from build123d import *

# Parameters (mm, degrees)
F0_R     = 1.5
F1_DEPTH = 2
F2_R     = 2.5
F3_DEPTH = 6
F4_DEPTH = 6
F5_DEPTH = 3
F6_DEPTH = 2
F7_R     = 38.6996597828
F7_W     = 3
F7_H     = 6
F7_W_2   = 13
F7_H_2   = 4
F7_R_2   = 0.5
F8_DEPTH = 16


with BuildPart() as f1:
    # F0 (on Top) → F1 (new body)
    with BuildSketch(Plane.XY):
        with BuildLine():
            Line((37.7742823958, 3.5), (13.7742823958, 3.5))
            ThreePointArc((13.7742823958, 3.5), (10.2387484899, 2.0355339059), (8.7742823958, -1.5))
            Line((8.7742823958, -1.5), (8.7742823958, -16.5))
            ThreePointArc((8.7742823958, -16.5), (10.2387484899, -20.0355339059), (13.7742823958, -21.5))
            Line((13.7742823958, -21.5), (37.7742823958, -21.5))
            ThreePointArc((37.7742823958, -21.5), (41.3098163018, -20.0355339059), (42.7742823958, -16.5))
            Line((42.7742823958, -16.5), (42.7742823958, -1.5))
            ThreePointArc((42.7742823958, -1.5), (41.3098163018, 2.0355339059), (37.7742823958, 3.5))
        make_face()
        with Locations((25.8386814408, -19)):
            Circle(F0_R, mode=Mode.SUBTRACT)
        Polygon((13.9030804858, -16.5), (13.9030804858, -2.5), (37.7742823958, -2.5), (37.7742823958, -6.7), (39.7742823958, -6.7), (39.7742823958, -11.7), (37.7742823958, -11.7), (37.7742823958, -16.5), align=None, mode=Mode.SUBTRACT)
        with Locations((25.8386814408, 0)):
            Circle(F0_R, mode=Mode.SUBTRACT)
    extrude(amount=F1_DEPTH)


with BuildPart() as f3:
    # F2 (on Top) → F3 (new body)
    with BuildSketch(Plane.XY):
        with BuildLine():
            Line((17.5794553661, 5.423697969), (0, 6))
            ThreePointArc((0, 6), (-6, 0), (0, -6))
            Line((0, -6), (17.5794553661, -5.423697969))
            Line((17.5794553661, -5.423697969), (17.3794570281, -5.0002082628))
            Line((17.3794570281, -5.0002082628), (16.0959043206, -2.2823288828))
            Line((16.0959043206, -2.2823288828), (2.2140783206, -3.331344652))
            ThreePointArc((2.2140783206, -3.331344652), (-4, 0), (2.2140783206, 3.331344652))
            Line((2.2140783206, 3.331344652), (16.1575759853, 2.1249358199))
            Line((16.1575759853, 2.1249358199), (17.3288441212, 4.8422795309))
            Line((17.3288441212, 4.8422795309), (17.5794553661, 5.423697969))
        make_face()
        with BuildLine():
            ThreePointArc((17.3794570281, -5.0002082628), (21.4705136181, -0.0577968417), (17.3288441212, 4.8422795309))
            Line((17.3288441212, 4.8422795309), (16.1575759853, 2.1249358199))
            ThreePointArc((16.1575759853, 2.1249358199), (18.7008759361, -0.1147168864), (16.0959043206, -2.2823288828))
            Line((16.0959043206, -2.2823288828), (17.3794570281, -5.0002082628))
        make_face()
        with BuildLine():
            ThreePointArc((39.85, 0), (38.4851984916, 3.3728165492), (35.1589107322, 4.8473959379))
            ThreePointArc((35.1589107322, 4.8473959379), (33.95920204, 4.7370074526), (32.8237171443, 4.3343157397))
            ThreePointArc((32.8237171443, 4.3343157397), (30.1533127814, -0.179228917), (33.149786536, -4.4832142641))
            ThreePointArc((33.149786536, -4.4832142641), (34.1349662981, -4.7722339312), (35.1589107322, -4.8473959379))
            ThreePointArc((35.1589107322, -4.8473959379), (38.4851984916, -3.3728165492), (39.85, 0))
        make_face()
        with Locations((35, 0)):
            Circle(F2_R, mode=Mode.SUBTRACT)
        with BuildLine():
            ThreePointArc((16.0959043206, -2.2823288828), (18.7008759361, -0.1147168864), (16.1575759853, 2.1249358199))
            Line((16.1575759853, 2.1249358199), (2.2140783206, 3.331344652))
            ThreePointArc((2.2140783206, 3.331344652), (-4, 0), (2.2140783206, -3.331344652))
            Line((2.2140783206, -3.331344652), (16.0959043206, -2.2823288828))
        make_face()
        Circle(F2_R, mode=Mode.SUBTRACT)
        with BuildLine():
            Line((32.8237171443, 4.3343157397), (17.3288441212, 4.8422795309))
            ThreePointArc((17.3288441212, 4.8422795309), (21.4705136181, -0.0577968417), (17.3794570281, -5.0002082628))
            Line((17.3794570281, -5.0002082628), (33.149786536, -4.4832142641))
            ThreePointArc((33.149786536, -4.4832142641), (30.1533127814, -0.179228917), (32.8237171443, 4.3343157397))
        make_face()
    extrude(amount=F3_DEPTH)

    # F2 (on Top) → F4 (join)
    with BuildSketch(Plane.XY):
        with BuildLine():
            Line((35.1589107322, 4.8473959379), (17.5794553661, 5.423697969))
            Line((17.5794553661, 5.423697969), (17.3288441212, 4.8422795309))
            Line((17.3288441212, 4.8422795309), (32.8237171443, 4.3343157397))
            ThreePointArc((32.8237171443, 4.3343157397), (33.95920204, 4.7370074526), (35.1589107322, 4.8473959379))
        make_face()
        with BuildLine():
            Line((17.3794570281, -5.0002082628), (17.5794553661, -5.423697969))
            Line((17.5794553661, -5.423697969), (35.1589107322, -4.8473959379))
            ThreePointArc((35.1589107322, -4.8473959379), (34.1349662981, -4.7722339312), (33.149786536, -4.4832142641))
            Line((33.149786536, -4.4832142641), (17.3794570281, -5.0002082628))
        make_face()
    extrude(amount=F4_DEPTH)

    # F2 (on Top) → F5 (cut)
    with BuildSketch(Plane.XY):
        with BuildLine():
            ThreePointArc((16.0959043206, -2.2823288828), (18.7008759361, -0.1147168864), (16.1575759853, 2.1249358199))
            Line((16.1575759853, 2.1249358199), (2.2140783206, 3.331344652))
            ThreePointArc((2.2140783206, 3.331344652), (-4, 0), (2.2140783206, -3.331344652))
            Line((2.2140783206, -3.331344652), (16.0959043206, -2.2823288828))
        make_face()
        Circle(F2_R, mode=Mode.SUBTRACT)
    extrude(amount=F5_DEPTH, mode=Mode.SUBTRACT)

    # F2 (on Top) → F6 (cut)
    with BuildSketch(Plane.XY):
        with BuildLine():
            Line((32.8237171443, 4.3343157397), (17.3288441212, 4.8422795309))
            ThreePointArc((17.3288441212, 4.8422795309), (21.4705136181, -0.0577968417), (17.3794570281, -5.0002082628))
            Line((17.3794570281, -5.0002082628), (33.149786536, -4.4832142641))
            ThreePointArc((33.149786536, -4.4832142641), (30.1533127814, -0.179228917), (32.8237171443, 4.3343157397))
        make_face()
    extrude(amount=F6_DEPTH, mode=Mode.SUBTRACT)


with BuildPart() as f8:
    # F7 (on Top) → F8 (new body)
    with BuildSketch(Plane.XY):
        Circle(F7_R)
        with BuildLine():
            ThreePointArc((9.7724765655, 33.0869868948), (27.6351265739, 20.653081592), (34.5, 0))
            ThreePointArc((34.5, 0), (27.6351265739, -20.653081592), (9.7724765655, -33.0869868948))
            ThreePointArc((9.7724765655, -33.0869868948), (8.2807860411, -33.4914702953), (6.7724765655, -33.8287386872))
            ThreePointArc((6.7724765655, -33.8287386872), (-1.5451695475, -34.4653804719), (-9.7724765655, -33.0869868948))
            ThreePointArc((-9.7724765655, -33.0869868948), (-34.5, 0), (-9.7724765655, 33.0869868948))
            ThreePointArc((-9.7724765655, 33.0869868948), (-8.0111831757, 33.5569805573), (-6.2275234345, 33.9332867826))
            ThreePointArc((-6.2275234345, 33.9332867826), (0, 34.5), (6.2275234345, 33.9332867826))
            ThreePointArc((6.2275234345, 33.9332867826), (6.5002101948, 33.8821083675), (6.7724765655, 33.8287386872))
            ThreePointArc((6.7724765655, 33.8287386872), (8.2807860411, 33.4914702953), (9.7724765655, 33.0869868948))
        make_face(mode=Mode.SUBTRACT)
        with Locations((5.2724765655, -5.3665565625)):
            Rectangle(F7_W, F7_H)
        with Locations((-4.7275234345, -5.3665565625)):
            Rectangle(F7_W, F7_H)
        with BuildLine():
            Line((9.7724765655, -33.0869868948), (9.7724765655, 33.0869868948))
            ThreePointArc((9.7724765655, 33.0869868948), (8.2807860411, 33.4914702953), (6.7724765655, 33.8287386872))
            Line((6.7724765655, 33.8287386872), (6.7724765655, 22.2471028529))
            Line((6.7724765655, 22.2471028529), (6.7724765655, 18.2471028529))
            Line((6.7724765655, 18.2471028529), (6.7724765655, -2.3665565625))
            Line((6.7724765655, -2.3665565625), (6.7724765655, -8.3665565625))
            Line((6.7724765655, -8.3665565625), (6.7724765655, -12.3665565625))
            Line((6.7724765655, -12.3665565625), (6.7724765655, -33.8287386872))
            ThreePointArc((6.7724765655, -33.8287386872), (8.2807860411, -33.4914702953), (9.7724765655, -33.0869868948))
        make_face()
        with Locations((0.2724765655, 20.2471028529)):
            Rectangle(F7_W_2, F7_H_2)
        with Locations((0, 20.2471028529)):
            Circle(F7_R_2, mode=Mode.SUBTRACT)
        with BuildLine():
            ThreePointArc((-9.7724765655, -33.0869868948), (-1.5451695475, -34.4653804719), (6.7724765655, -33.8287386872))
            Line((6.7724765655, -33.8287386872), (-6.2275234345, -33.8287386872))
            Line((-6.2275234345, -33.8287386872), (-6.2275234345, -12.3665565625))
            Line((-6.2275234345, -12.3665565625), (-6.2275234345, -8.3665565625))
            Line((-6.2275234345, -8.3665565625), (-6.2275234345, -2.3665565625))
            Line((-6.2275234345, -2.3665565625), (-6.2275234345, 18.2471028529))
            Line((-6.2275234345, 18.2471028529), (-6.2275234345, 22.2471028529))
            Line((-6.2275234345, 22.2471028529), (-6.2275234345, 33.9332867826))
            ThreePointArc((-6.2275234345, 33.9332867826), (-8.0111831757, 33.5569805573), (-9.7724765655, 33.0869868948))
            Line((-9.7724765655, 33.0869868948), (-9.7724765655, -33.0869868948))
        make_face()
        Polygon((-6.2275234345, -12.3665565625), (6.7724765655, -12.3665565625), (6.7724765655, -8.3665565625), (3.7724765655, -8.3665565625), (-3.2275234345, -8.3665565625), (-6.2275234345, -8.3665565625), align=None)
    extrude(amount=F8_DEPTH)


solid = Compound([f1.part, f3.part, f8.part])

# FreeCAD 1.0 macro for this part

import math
import FreeCAD as App
import Part
import Sketcher

V = App.Vector
Q = App.Units.Quantity


def add_polygon(sketch, points):
    """Adds a closed chain of lines whose ends are joined by coincident constraints."""
    first, n = sketch.GeometryCount, len(points)
    for a, b in zip(points, points[1:] + points[:1]):
        sketch.addGeometry(Part.LineSegment(App.Vector(*a, 0), App.Vector(*b, 0)), False)
    for i in range(n):
        sketch.addConstraint(Sketcher.Constraint("Coincident", first + i, 2, first + (i + 1) % n, 1))

doc = App.newDocument("Part")
body = doc.addObject("PartDesign::Body", "Body")

# Sketch on XY plane
sketch1 = body.newObject("Sketcher::SketchObject", "Sketch")
sketch1.AttachmentSupport = (doc.getObject("XY_Plane"), [""])
sketch1.MapMode = "FlatFace"
sketch1.addGeometry(Part.LineSegment(V(37.8, 3.5, 0), V(13.8, 3.5, 0)), False)  # 0
sketch1.addGeometry(Part.ArcOfCircle(Part.Circle(V(13.8, -1.5, 0), V(0, 0, 1), 5), math.radians(90), math.radians(180)), False)  # 1
sketch1.addGeometry(Part.LineSegment(V(8.8, -1.5, 0), V(8.8, -16.5, 0)), False)  # 2
sketch1.addGeometry(Part.ArcOfCircle(Part.Circle(V(13.8, -16.5, 0), V(0, 0, 1), 5), math.radians(180), math.radians(270)), False)  # 3
sketch1.addGeometry(Part.LineSegment(V(13.8, -21.5, 0), V(37.8, -21.5, 0)), False)  # 4
sketch1.addGeometry(Part.ArcOfCircle(Part.Circle(V(37.8, -16.5, 0), V(0, 0, 1), 5), math.radians(-90), math.radians(0)), False)  # 5
sketch1.addGeometry(Part.LineSegment(V(42.8, -16.5, 0), V(42.8, -1.5, 0)), False)  # 6
sketch1.addGeometry(Part.ArcOfCircle(Part.Circle(V(37.8, -1.5, 0), V(0, 0, 1), 5), math.radians(0), math.radians(90)), False)  # 7
sketch1.addGeometry(Part.Circle(V(25.8, -19, 0), V(0, 0, 1), 1.5), False)  # 8
sketch1.addGeometry(Part.Circle(V(25.8, 0, 0), V(0, 0, 1), 1.5), False)  # 9
add_polygon(sketch1, [(37.8, -16.5), (13.9, -16.5), (13.9, -2.5), (37.8, -2.5), (37.8, -6.7), (39.8, -6.7), (39.8, -11.7), (37.8, -11.7)])  # lines 10-17
sketch1.addConstraint(Sketcher.Constraint("Tangent", 0, 2, 1, 1))
sketch1.addConstraint(Sketcher.Constraint("Tangent", 1, 2, 2, 1))
sketch1.addConstraint(Sketcher.Constraint("Tangent", 2, 2, 3, 1))
sketch1.addConstraint(Sketcher.Constraint("Tangent", 3, 2, 4, 1))
sketch1.addConstraint(Sketcher.Constraint("Tangent", 4, 2, 5, 1))
sketch1.addConstraint(Sketcher.Constraint("Tangent", 5, 2, 6, 1))
sketch1.addConstraint(Sketcher.Constraint("Tangent", 6, 2, 7, 1))
sketch1.addConstraint(Sketcher.Constraint("Tangent", 7, 2, 0, 1))
sketch1.addConstraint(Sketcher.Constraint("Horizontal", 0))
sketch1.addConstraint(Sketcher.Constraint("Vertical", 2))
sketch1.addConstraint(Sketcher.Constraint("Horizontal", 4))
sketch1.addConstraint(Sketcher.Constraint("Vertical", 6))
sketch1.addConstraint(Sketcher.Constraint("Horizontal", 10))
sketch1.addConstraint(Sketcher.Constraint("Vertical", 11))
sketch1.addConstraint(Sketcher.Constraint("Horizontal", 12))
sketch1.addConstraint(Sketcher.Constraint("Vertical", 13))
sketch1.addConstraint(Sketcher.Constraint("Horizontal", 14))
sketch1.addConstraint(Sketcher.Constraint("Vertical", 15))
sketch1.addConstraint(Sketcher.Constraint("Horizontal", 16))
sketch1.addConstraint(Sketcher.Constraint("Vertical", 17))
sketch1.addConstraint(Sketcher.Constraint("Coincident", 17, 2, 5, 3))
sketch1.addConstraint(Sketcher.Constraint("Equal", 1, 3))
sketch1.addConstraint(Sketcher.Constraint("Equal", 3, 5))
sketch1.addConstraint(Sketcher.Constraint("Equal", 5, 7))
sketch1.addConstraint(Sketcher.Constraint("Equal", 8, 9))
sketch1.addConstraint(Sketcher.Constraint("PointOnObject", 9, 3, -1))
sketch1.addConstraint(Sketcher.Constraint("Vertical", 8, 3, 9, 3))
sketch1.addConstraint(Sketcher.Constraint("Vertical", 7, 2, 12, 2))
sketch1.addConstraint(Sketcher.Constraint("Diameter", 8, Q("3 mm")))
sketch1.addConstraint(Sketcher.Constraint("Radius", 1, Q("5 mm")))
sketch1.addConstraint(Sketcher.Constraint("DistanceX", 0, 2, 0, 1, Q("24 mm")))
sketch1.addConstraint(Sketcher.Constraint("DistanceX", 14, 1, 14, 2, Q("2 mm")))
sketch1.addConstraint(Sketcher.Constraint("DistanceY", 2, 2, 2, 1, Q("15 mm")))
sketch1.addConstraint(Sketcher.Constraint("DistanceY", 11, 1, 11, 2, Q("14 mm")))
sketch1.addConstraint(Sketcher.Constraint("DistanceY", 15, 2, 15, 1, Q("5 mm")))
sketch1.addConstraint(Sketcher.Constraint("DistanceY", 13, 2, 13, 1, Q("4.2 mm")))
sketch1.addConstraint(Sketcher.Constraint("DistanceY", 8, 3, -1, 1, Q("19 mm")))
sketch1.addConstraint(Sketcher.Constraint("DistanceY", 1, 3, -1, 1, Q("1.5 mm")))
sketch1.addConstraint(Sketcher.Constraint("DistanceX", 10, 2, 10, 1, Q("23.871202 mm")))
sketch1.addConstraint(Sketcher.Constraint("DistanceX", 8, 3, 5, 3, Q("11.935601 mm")))
sketch1.addConstraint(Sketcher.Constraint("DistanceX", -1, 1, 8, 3, Q("25.838681 mm")))
pad1 = body.newObject("PartDesign::Pad", "Pad")
pad1.Profile = sketch1
pad1.Length = 2
body2 = doc.addObject("PartDesign::Body", "Body001")

# Sketch on XY plane
sketch2 = body2.newObject("Sketcher::SketchObject", "Sketch001")
sketch2.AttachmentSupport = (doc.getObject("XY_Plane001"), [""])
sketch2.MapMode = "FlatFace"
sketch2.addGeometry(Part.LineSegment(V(17.58, 5.42, 0), V(0, 6, 0)), False)
sketch2.addGeometry(Part.ArcOfCircle(Part.Circle(V(0, 0, 0), V(0, 0, 1), 6), math.radians(90), math.radians(270)), False)
sketch2.addGeometry(Part.LineSegment(V(0, -6, 0), V(17.58, -5.42, 0)), False)
sketch2.addGeometry(Part.LineSegment(V(17.58, -5.42, 0), V(17.38, -5, 0)), False)
sketch2.addGeometry(Part.LineSegment(V(17.38, -5, 0), V(33.15, -4.48, 0)), False)
sketch2.addGeometry(Part.ArcOfCircle(Part.Circle(V(35, 0, 0), V(0, 0, 1), 4.85), math.radians(-112), math.radians(-88)), False)
sketch2.addGeometry(Part.ArcOfCircle(Part.Circle(V(35, 0, 0), V(0, 0, 1), 4.85), math.radians(-88), math.radians(0)), False)
sketch2.addGeometry(Part.ArcOfCircle(Part.Circle(V(35, 0, 0), V(0, 0, 1), 4.85), math.radians(0), math.radians(88)), False)
sketch2.addGeometry(Part.ArcOfCircle(Part.Circle(V(35, 0, 0), V(0, 0, 1), 4.85), math.radians(88), math.radians(117)), False)
sketch2.addGeometry(Part.LineSegment(V(32.82, 4.33, 0), V(17.33, 4.84, 0)), False)
sketch2.addGeometry(Part.LineSegment(V(17.33, 4.84, 0), V(17.58, 5.42, 0)), False)
sketch2.addGeometry(Part.Circle(V(0, 0, 0), V(0, 0, 1), 2.5), False)
sketch2.addGeometry(Part.Circle(V(35, 0, 0), V(0, 0, 1), 2.5), False)
sketch2.addConstraint(Sketcher.Constraint("Coincident", 0, 2, 1, 1))
sketch2.addConstraint(Sketcher.Constraint("Coincident", 1, 2, 2, 1))
sketch2.addConstraint(Sketcher.Constraint("Coincident", 2, 2, 3, 1))
sketch2.addConstraint(Sketcher.Constraint("Coincident", 3, 2, 4, 1))
sketch2.addConstraint(Sketcher.Constraint("Coincident", 4, 2, 5, 1))
sketch2.addConstraint(Sketcher.Constraint("Tangent", 5, 2, 6, 1))
sketch2.addConstraint(Sketcher.Constraint("Tangent", 6, 2, 7, 1))
sketch2.addConstraint(Sketcher.Constraint("Tangent", 7, 2, 8, 1))
sketch2.addConstraint(Sketcher.Constraint("Coincident", 8, 2, 9, 1))
sketch2.addConstraint(Sketcher.Constraint("Coincident", 9, 2, 10, 1))
sketch2.addConstraint(Sketcher.Constraint("Coincident", 10, 2, 0, 1))
sketch2.addConstraint(Sketcher.Constraint("Coincident", 1, 3, -1, 1))
sketch2.addConstraint(Sketcher.Constraint("Coincident", 11, 3, -1, 1))
sketch2.addConstraint(Sketcher.Constraint("Coincident", 7, 3, 5, 3))
sketch2.addConstraint(Sketcher.Constraint("Coincident", 12, 3, 5, 3))
sketch2.addConstraint(Sketcher.Constraint("Equal", 7, 8))
sketch2.addConstraint(Sketcher.Constraint("Equal", 11, 12))
sketch2.addConstraint(Sketcher.Constraint("Symmetric", 5, 2, 7, 2, -1))
sketch2.addConstraint(Sketcher.Constraint("Symmetric", 2, 2, 10, 2, -1))
sketch2.addConstraint(Sketcher.Constraint("PointOnObject", 0, 2, -2))
sketch2.addConstraint(Sketcher.Constraint("PointOnObject", 1, 2, -2))
sketch2.addConstraint(Sketcher.Constraint("PointOnObject", 6, 2, -1))
sketch2.addConstraint(Sketcher.Constraint("Parallel", 2, 4))
sketch2.addConstraint(Sketcher.Constraint("Parallel", 0, 9))
sketch2.addConstraint(Sketcher.Constraint("Diameter", 11, Q("5 mm")))
sketch2.addConstraint(Sketcher.Constraint("Radius", 1, Q("6 mm")))
sketch2.addConstraint(Sketcher.Constraint("Radius", 5, Q("4.85 mm")))
sketch2.addConstraint(Sketcher.Constraint("DistanceX", -1, 1, 5, 3, Q("35 mm")))
sketch2.addConstraint(Sketcher.Constraint("DistanceX", 3, 2, 2, 2, Q("0.199998 mm")))
sketch2.addConstraint(Sketcher.Constraint("Distance", 0, Q("17.588899 mm")))
sketch2.addConstraint(Sketcher.Constraint("Distance", 4, Q("15.778801 mm")))
sketch2.addConstraint(Sketcher.Constraint("Distance", 3, Q("0.468341 mm")))
sketch2.addConstraint(Sketcher.Constraint("Distance", 10, Q("0.63313 mm")))
sketch2.addConstraint(Sketcher.Constraint("DistanceX", -1, 1, 5, 2, Q("35.158911 mm")))
sketch2.addConstraint(Sketcher.Constraint("DistanceY", -1, 1, 9, 2, Q("4.84228 mm")))
pad2 = body2.newObject("PartDesign::Pad", "Pad001")
pad2.Profile = sketch2
pad2.Length = 6

# Sketch on XY plane
sketch3 = body2.newObject("Sketcher::SketchObject", "Sketch002")
sketch3.AttachmentSupport = (doc.getObject("XY_Plane001"), [""])
sketch3.MapMode = "FlatFace"
sketch3.addGeometry(Part.LineSegment(V(35.158911, 4.847396, 0), V(17.579455, 5.423698, 0)), False)
sketch3.addGeometry(Part.LineSegment(V(17.579455, 5.423698, 0), V(17.328844, 4.84228, 0)), False)
sketch3.addGeometry(Part.LineSegment(V(17.328844, 4.84228, 0), V(32.823717, 4.334316, 0)), False)
sketch3.addGeometry(Part.ArcOfCircle(Part.Circle(V(35, 0, 0), V(0, 0, 1), 4.85), math.radians(88.122362), math.radians(116.661469)), False)
sketch3.addGeometry(Part.LineSegment(V(17.379457, -5.000208, 0), V(17.579455, -5.423698, 0)), False)
sketch3.addGeometry(Part.LineSegment(V(17.579455, -5.423698, 0), V(35.158911, -4.847396, 0)), False)
sketch3.addGeometry(Part.ArcOfCircle(Part.Circle(V(35, 0, 0), V(0, 0, 1), 4.85), math.radians(-112.425841), math.radians(-88.122362)), False)
sketch3.addGeometry(Part.LineSegment(V(33.149787, -4.483214, 0), V(17.379457, -5.000208, 0)), False)
sketch3.addConstraint(Sketcher.Constraint("Coincident", 0, 2, 1, 1))
sketch3.addConstraint(Sketcher.Constraint("Coincident", 1, 2, 2, 1))
sketch3.addConstraint(Sketcher.Constraint("Coincident", 2, 2, 3, 2))
sketch3.addConstraint(Sketcher.Constraint("Coincident", 3, 1, 0, 1))
sketch3.addConstraint(Sketcher.Constraint("Coincident", 4, 2, 5, 1))
sketch3.addConstraint(Sketcher.Constraint("Coincident", 5, 2, 6, 2))
sketch3.addConstraint(Sketcher.Constraint("Coincident", 6, 1, 7, 1))
sketch3.addConstraint(Sketcher.Constraint("Coincident", 7, 2, 4, 1))
sketch3.addConstraint(Sketcher.Constraint("Coincident", 6, 3, 3, 3))
sketch3.addConstraint(Sketcher.Constraint("PointOnObject", 3, 3, -1))
sketch3.addConstraint(Sketcher.Constraint("Radius", 3, Q("4.85 mm")))
sketch3.addConstraint(Sketcher.Constraint("Radius", 6, Q("4.85 mm")))
sketch3.addConstraint(Sketcher.Constraint("DistanceX", -1, 1, 3, 3, Q("35 mm")))
sketch3.addConstraint(Sketcher.Constraint("DistanceX", 7, 2, 4, 2, Q("0.199998 mm")))
sketch3.addConstraint(Sketcher.Constraint("DistanceX", 7, 2, 0, 2, Q("0.199998 mm")))
sketch3.addConstraint(Sketcher.Constraint("Distance", 0, Q("17.588899 mm")))
sketch3.addConstraint(Sketcher.Constraint("Distance", 5, Q("17.588899 mm")))
sketch3.addConstraint(Sketcher.Constraint("Distance", 7, Q("15.778801 mm")))
sketch3.addConstraint(Sketcher.Constraint("Distance", 1, Q("0.63313 mm")))
sketch3.addConstraint(Sketcher.Constraint("Distance", 4, Q("0.468341 mm")))
sketch3.addConstraint(Sketcher.Constraint("DistanceY", -1, 1, 1, 2, Q("4.84228 mm")))
sketch3.addConstraint(Sketcher.Constraint("DistanceX", -1, 1, 3, 1, Q("35.158911 mm")))
sketch3.addConstraint(Sketcher.Constraint("DistanceX", -1, 1, 5, 2, Q("35.158911 mm")))
sketch3.addConstraint(Sketcher.Constraint("DistanceY", 7, 2, -1, 1, Q("5.000208 mm")))
sketch3.addConstraint(Sketcher.Constraint("DistanceX", 0, 2, 2, 2, Q("15.244262 mm")))
pad3 = body2.newObject("PartDesign::Pad", "Pad002")
pad3.Profile = sketch3
pad3.Length = 6

# Sketch on XY plane
sketch4 = body2.newObject("Sketcher::SketchObject", "Sketch003")
sketch4.AttachmentSupport = (doc.getObject("XY_Plane001"), [""])
sketch4.MapMode = "FlatFace"
sketch4.addGeometry(Part.ArcOfCircle(Part.Circle(V(16.5, -0.1, 0), V(0, 0, 1), 2.2), math.radians(-100), math.radians(98)), False)
sketch4.addGeometry(Part.LineSegment(V(16.2, 2.1, 0), V(2.2, 3.3, 0)), False)
sketch4.addGeometry(Part.ArcOfCircle(Part.Circle(V(0, 0, 0), V(0, 0, 1), 4), math.radians(56), math.radians(304)), False)
sketch4.addGeometry(Part.LineSegment(V(2.2, -3.3, 0), V(16.1, -2.3, 0)), False)
sketch4.addGeometry(Part.Circle(V(0, 0, 0), V(0, 0, 1), 2.5), False)
sketch4.addConstraint(Sketcher.Constraint("Coincident", 0, 2, 1, 1))
sketch4.addConstraint(Sketcher.Constraint("Coincident", 1, 2, 2, 1))
sketch4.addConstraint(Sketcher.Constraint("Coincident", 2, 2, 3, 1))
sketch4.addConstraint(Sketcher.Constraint("Coincident", 3, 2, 0, 1))
sketch4.addConstraint(Sketcher.Constraint("Coincident", 2, 3, -1, 1))
sketch4.addConstraint(Sketcher.Constraint("Coincident", 4, 3, -1, 1))
sketch4.addConstraint(Sketcher.Constraint("Vertical", 1, 2, 2, 2))
sketch4.addConstraint(Sketcher.Constraint("Diameter", 4, Q("5 mm")))
sketch4.addConstraint(Sketcher.Constraint("Radius", 2, Q("4 mm")))
sketch4.addConstraint(Sketcher.Constraint("Radius", 0, Q("2.230515 mm")))
sketch4.addConstraint(Sketcher.Constraint("DistanceX", 1, 2, 0, 3, Q("14.256501 mm")))
sketch4.addConstraint(Sketcher.Constraint("Distance", 1, Q("13.99559 mm")))
sketch4.addConstraint(Sketcher.Constraint("DistanceX", -1, 1, 0, 3, Q("16.47058 mm")))
sketch4.addConstraint(Sketcher.Constraint("DistanceY", 3, 2, -1, 1, Q("2.282329 mm")))
sketch4.addConstraint(Sketcher.Constraint("DistanceY", 0, 2, 1, 2, Q("1.206409 mm")))
pocket1 = body2.newObject("PartDesign::Pocket", "Pocket")
pocket1.Profile = sketch4
pocket1.Length = 3
pocket1.Reversed = True

# Sketch on XY plane
sketch5 = body2.newObject("Sketcher::SketchObject", "Sketch004")
sketch5.AttachmentSupport = (doc.getObject("XY_Plane001"), [""])
sketch5.MapMode = "FlatFace"
sketch5.addGeometry(Part.LineSegment(V(32.8, 4.3, 0), V(17.3, 4.8, 0)), False)
sketch5.addGeometry(Part.ArcOfCircle(Part.Circle(V(16.5, -0.1, 0), V(0, 0, 1), 5), math.radians(-80), math.radians(80)), False)
sketch5.addGeometry(Part.LineSegment(V(17.4, -5, 0), V(33.1, -4.5, 0)), False)
sketch5.addGeometry(Part.ArcOfCircle(Part.Circle(V(35, 0, 0), V(0, 0, 1), 4.8), math.radians(117), math.radians(248)), False)
sketch5.addConstraint(Sketcher.Constraint("Coincident", 0, 2, 1, 2))
sketch5.addConstraint(Sketcher.Constraint("Coincident", 1, 1, 2, 1))
sketch5.addConstraint(Sketcher.Constraint("Coincident", 2, 2, 3, 2))
sketch5.addConstraint(Sketcher.Constraint("Coincident", 3, 1, 0, 1))
sketch5.addConstraint(Sketcher.Constraint("PointOnObject", 3, 3, -1))
sketch5.addConstraint(Sketcher.Constraint("Radius", 1, Q("5 mm")))
sketch5.addConstraint(Sketcher.Constraint("Radius", 3, Q("4.85 mm")))
sketch5.addConstraint(Sketcher.Constraint("DistanceX", -1, 1, 3, 3, Q("35 mm")))
sketch5.addConstraint(Sketcher.Constraint("Distance", 2, Q("15.778801 mm")))
sketch5.addConstraint(Sketcher.Constraint("DistanceY", 1, 1, 1, 3, Q("4.9167 mm")))
sketch5.addConstraint(Sketcher.Constraint("DistanceX", -1, 1, 1, 3, Q("16.47058 mm")))
sketch5.addConstraint(Sketcher.Constraint("DistanceY", -1, 1, 0, 2, Q("4.84228 mm")))
sketch5.addConstraint(Sketcher.Constraint("DistanceY", 1, 1, -1, 1, Q("5.000208 mm")))
sketch5.addConstraint(Sketcher.Constraint("DistanceX", 3, 1, 2, 2, Q("0.326069 mm")))
pocket2 = body2.newObject("PartDesign::Pocket", "Pocket001")
pocket2.Profile = sketch5
pocket2.Length = 2
pocket2.Reversed = True
body3 = doc.addObject("PartDesign::Body", "Body002")

# Sketch on XY plane
sketch6 = body3.newObject("Sketcher::SketchObject", "Sketch005")
sketch6.AttachmentSupport = (doc.getObject("XY_Plane002"), [""])
sketch6.MapMode = "FlatFace"
sketch6.addGeometry(Part.Circle(V(0, 0, 0), V(0, 0, 1), 38.7), False)  # 0
sketch6.addGeometry(Part.ArcOfCircle(Part.Circle(V(0, 0, 0), V(0, 0, 1), 34.5), math.radians(78.68), math.radians(79.6)), False)  # 1
sketch6.addGeometry(Part.LineSegment(V(6.8, 33.8, 0), V(6.8, 22.2, 0)), False)  # 2
sketch6.addGeometry(Part.LineSegment(V(6.8, 22.2, 0), V(-6.2, 22.2, 0)), False)  # 3
sketch6.addGeometry(Part.LineSegment(V(-6.2, 22.2, 0), V(-6.2, 33.9, 0)), False)  # 4
sketch6.addGeometry(Part.ArcOfCircle(Part.Circle(V(0, 0, 0), V(0, 0, 1), 34.5), math.radians(80), math.radians(100)), False)  # 5
sketch6.addGeometry(Part.ArcOfCircle(Part.Circle(V(0, 0, 0), V(0, 0, 1), 34.5), math.radians(106), math.radians(254)), False)  # 6
sketch6.addGeometry(Part.LineSegment(V(-9.8, 33.1, 0), V(-9.8, -33.1, 0)), False)  # 7
add_polygon(sketch6, [(-6.2, 18.2), (6.8, 18.2), (6.8, -2.4), (3.8, -2.4), (3.8, -8.4), (-3.2, -8.4), (-3.2, -2.4), (-6.2, -2.4)])  # lines 8-15
add_polygon(sketch6, [(6.8, -12.4), (6.8, -33.8), (-6.2, -33.8), (-6.2, -12.4)])  # lines 16-19
sketch6.addGeometry(Part.ArcOfCircle(Part.Circle(V(0, 0, 0), V(0, 0, 1), 34.5), math.radians(-74), math.radians(0)), False)  # 20
sketch6.addGeometry(Part.LineSegment(V(9.8, -33.1, 0), V(9.8, 33.1, 0)), False)  # 21
sketch6.addGeometry(Part.ArcOfCircle(Part.Circle(V(0, 0, 0), V(0, 0, 1), 34.5), math.radians(0), math.radians(74)), False)  # 22
sketch6.addGeometry(Part.Circle(V(0, 20.2, 0), V(0, 0, 1), 0.5), False)  # 23
sketch6.addConstraint(Sketcher.Constraint("Coincident", 1, 1, 2, 1))
sketch6.addConstraint(Sketcher.Constraint("Coincident", 2, 2, 3, 1))
sketch6.addConstraint(Sketcher.Constraint("Coincident", 3, 2, 4, 1))
sketch6.addConstraint(Sketcher.Constraint("Coincident", 4, 2, 5, 2))
sketch6.addConstraint(Sketcher.Constraint("Tangent", 5, 1, 1, 2))
sketch6.addConstraint(Sketcher.Constraint("Coincident", 6, 1, 7, 1))
sketch6.addConstraint(Sketcher.Constraint("Coincident", 7, 2, 6, 2))
sketch6.addConstraint(Sketcher.Constraint("Coincident", 20, 1, 21, 1))
sketch6.addConstraint(Sketcher.Constraint("Coincident", 21, 2, 22, 2))
sketch6.addConstraint(Sketcher.Constraint("Tangent", 22, 1, 20, 2))
sketch6.addConstraint(Sketcher.Constraint("Vertical", 2))
sketch6.addConstraint(Sketcher.Constraint("Horizontal", 3))
sketch6.addConstraint(Sketcher.Constraint("Vertical", 4))
sketch6.addConstraint(Sketcher.Constraint("Vertical", 7))
sketch6.addConstraint(Sketcher.Constraint("Horizontal", 8))
sketch6.addConstraint(Sketcher.Constraint("Vertical", 9))
sketch6.addConstraint(Sketcher.Constraint("Horizontal", 10))
sketch6.addConstraint(Sketcher.Constraint("Vertical", 11))
sketch6.addConstraint(Sketcher.Constraint("Horizontal", 12))
sketch6.addConstraint(Sketcher.Constraint("Vertical", 13))
sketch6.addConstraint(Sketcher.Constraint("Horizontal", 14))
sketch6.addConstraint(Sketcher.Constraint("Vertical", 15))
sketch6.addConstraint(Sketcher.Constraint("Vertical", 16))
sketch6.addConstraint(Sketcher.Constraint("Horizontal", 17))
sketch6.addConstraint(Sketcher.Constraint("Vertical", 18))
sketch6.addConstraint(Sketcher.Constraint("Horizontal", 19))
sketch6.addConstraint(Sketcher.Constraint("Vertical", 21))
sketch6.addConstraint(Sketcher.Constraint("Coincident", 0, 3, -1, 1))
sketch6.addConstraint(Sketcher.Constraint("Coincident", 1, 3, -1, 1))
sketch6.addConstraint(Sketcher.Constraint("Coincident", 6, 3, -1, 1))
sketch6.addConstraint(Sketcher.Constraint("Coincident", 20, 3, -1, 1))
sketch6.addConstraint(Sketcher.Constraint("Equal", 5, 6))
sketch6.addConstraint(Sketcher.Constraint("Equal", 6, 20))
sketch6.addConstraint(Sketcher.Constraint("Equal", 20, 22))
sketch6.addConstraint(Sketcher.Constraint("Symmetric", 4, 2, 5, 1, -2))
sketch6.addConstraint(Sketcher.Constraint("Symmetric", 1, 1, 16, 2, -1))
sketch6.addConstraint(Sketcher.Constraint("PointOnObject", 23, 3, -2))
sketch6.addConstraint(Sketcher.Constraint("PointOnObject", 22, 1, -1))
sketch6.addConstraint(Sketcher.Constraint("Horizontal", 10, 2, 13, 2))
sketch6.addConstraint(Sketcher.Constraint("Horizontal", 7, 2, 20, 1))
sketch6.addConstraint(Sketcher.Constraint("Vertical", 2, 2, 8, 2))
sketch6.addConstraint(Sketcher.Constraint("Vertical", 4, 2, 14, 2))
sketch6.addConstraint(Sketcher.Constraint("Vertical", 15, 2, 17, 2))
sketch6.addConstraint(Sketcher.Constraint("Equal", 10, 14))
sketch6.addConstraint(Sketcher.Constraint("Diameter", 23, Q("1 mm")))
sketch6.addConstraint(Sketcher.Constraint("Radius", 5, Q("34.5 mm")))
sketch6.addConstraint(Sketcher.Constraint("DistanceX", 3, 2, 3, 1, Q("13 mm")))
sketch6.addConstraint(Sketcher.Constraint("DistanceX", 10, 2, 10, 1, Q("3 mm")))
sketch6.addConstraint(Sketcher.Constraint("DistanceY", 11, 2, 11, 1, Q("6 mm")))
sketch6.addConstraint(Sketcher.Constraint("DistanceY", 23, 3, 2, 2, Q("2 mm")))
sketch6.addConstraint(Sketcher.Constraint("DistanceX", 6, 1, 5, 1, Q("16 mm")))
sketch6.addConstraint(Sketcher.Constraint("DistanceY", 8, 2, 2, 2, Q("4 mm")))
sketch6.addConstraint(Sketcher.Constraint("DistanceY", 18, 2, 12, 2, Q("4 mm")))
sketch6.addConstraint(Sketcher.Constraint("Diameter", 0, Q("77.39932 mm")))
sketch6.addConstraint(Sketcher.Constraint("DistanceY", 9, 2, 9, 1, Q("20.613659 mm")))
sketch6.addConstraint(Sketcher.Constraint("DistanceY", 1, 3, 23, 3, Q("20.2471 mm")))
sketch6.addConstraint(Sketcher.Constraint("DistanceY", 6, 1, 4, 2, Q("0.8463 mm")))
pad4 = body3.newObject("PartDesign::Pad", "Pad003")
pad4.Profile = sketch6
pad4.Length = 16

doc.recompute()
